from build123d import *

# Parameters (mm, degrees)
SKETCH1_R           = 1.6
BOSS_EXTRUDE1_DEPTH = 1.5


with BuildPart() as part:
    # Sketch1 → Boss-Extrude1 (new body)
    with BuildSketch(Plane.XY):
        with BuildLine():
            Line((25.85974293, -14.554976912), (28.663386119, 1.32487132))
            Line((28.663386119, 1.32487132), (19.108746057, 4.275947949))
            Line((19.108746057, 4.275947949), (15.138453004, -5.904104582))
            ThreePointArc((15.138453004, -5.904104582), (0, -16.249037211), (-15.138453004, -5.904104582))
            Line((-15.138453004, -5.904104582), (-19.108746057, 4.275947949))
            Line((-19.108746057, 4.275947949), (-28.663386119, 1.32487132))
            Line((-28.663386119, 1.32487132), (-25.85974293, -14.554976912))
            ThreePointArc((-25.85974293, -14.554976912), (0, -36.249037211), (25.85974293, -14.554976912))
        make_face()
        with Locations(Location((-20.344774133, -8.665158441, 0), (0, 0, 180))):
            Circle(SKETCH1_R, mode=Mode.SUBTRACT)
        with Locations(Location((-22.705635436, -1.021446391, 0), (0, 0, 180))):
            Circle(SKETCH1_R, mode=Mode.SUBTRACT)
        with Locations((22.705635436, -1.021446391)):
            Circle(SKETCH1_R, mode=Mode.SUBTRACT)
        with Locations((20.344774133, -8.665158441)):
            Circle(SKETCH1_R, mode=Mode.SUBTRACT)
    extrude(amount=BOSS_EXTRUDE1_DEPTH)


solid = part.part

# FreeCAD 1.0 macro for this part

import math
import FreeCAD as App
import Part
import Sketcher
Q = App.Units.Quantity

doc = App.newDocument("Part")
body = doc.addObject("PartDesign::Body", "Body")

sketch1 = body.newObject("Sketcher::SketchObject", "Sketch")
sketch1.AttachmentSupport = (doc.getObject("XY_Plane"), [""])
sketch1.MapMode = "FlatFace"
sketch1.addGeometry([
    Part.LineSegment(App.Vector(25.859743, -14.554977, 0), App.Vector(28.663386, 1.324871, 0)),
    Part.LineSegment(App.Vector(28.663386, 1.324871, 0), App.Vector(19.108746, 4.275948, 0)),
    Part.LineSegment(App.Vector(19.108746, 4.275948, 0), App.Vector(15.138453, -5.904105, 0)),
    Part.ArcOfCircle(Part.Circle(App.Vector(0, 0, 0), App.Vector(0, 0, 1), 16.249037), math.radians(-158.693862), math.radians(-21.306138)),
    Part.LineSegment(App.Vector(-15.138453, -5.904105, 0), App.Vector(-19.108746, 4.275948, 0)),
    Part.LineSegment(App.Vector(-19.108746, 4.275948, 0), App.Vector(-28.663386, 1.324871, 0)),
    Part.LineSegment(App.Vector(-28.663386, 1.324871, 0), App.Vector(-25.859743, -14.554977, 0)),
    Part.ArcOfCircle(Part.Circle(App.Vector(0, -9.989348, 0), App.Vector(0, 0, 1), 26.259689), math.radians(-169.987412), math.radians(-10.012588)),
    Part.Circle(App.Vector(-20.344774, -8.665158, 0), App.Vector(0, 0, 1), 1.6),
    Part.Circle(App.Vector(20.344774, -8.665158, 0), App.Vector(0, 0, 1), 1.6),
    Part.Circle(App.Vector(-22.705635, -1.021446, 0), App.Vector(0, 0, 1), 1.6),
    Part.Circle(App.Vector(22.705635, -1.021446, 0), App.Vector(0, 0, 1), 1.6),
], False)
sketch1.addConstraint([
    Sketcher.Constraint("Coincident", 0, 2, 1, 1),
    Sketcher.Constraint("Coincident", 1, 2, 2, 1),
    Sketcher.Constraint("Tangent", 2, 2, 3, 2),
    Sketcher.Constraint("Tangent", 3, 1, 4, 1),
    Sketcher.Constraint("Coincident", 4, 2, 5, 1),
    Sketcher.Constraint("Coincident", 5, 2, 6, 1),
    Sketcher.Constraint("Tangent", 6, 2, 7, 1),
    Sketcher.Constraint("Tangent", 7, 2, 0, 1),
    Sketcher.Constraint("Coincident", 3, 3, -1, 1),
    Sketcher.Constraint("Equal", 8, 9),
    Sketcher.Constraint("Equal", 9, 10),
    Sketcher.Constraint("Equal", 10, 11),
    Sketcher.Constraint("Symmetric", 8, 3, 9, 3, -2),
    Sketcher.Constraint("Symmetric", 10, 3, 11, 3, -2),
    Sketcher.Constraint("Symmetric", 1, 2, 4, 2, -2),
    Sketcher.Constraint("Symmetric", 0, 2, 5, 2, -2),
    Sketcher.Constraint("PointOnObject", 7, 3, -2),
    Sketcher.Constraint("Diameter", 8, Q("3.2 mm")),
    Sketcher.Constraint("Distance", 1, Q("10 mm")),
    Sketcher.Constraint("Radius", 7, Q("26.259689 mm")),
    Sketcher.Constraint("Radius", 3, Q("16.249037 mm")),
    Sketcher.Constraint("DistanceY", 7, 3, 10, 3, Q("8.967902 mm")),
    Sketcher.Constraint("Distance", 2, Q("10.92688 mm")),
    Sketcher.Constraint("DistanceY", 7, 3, -1, 1, Q("9.989348 mm")),
    Sketcher.Constraint("DistanceY", 8, 3, -1, 1, Q("8.665158 mm")),
    Sketcher.Constraint("DistanceY", -1, 1, 0, 2, Q("1.324871 mm")),
    Sketcher.Constraint("DistanceX", 8, 3, 9, 3, Q("40.689548 mm")),
    Sketcher.Constraint("DistanceX", 10, 3, 8, 3, Q("2.360861 mm")),
    Sketcher.Constraint("DistanceX", 11, 3, 0, 2, Q("5.957751 mm")),
])
pad1 = body.newObject("PartDesign::Pad", "Pad")
pad1.Profile = sketch1
pad1.Length = 1.5

doc.recompute()
